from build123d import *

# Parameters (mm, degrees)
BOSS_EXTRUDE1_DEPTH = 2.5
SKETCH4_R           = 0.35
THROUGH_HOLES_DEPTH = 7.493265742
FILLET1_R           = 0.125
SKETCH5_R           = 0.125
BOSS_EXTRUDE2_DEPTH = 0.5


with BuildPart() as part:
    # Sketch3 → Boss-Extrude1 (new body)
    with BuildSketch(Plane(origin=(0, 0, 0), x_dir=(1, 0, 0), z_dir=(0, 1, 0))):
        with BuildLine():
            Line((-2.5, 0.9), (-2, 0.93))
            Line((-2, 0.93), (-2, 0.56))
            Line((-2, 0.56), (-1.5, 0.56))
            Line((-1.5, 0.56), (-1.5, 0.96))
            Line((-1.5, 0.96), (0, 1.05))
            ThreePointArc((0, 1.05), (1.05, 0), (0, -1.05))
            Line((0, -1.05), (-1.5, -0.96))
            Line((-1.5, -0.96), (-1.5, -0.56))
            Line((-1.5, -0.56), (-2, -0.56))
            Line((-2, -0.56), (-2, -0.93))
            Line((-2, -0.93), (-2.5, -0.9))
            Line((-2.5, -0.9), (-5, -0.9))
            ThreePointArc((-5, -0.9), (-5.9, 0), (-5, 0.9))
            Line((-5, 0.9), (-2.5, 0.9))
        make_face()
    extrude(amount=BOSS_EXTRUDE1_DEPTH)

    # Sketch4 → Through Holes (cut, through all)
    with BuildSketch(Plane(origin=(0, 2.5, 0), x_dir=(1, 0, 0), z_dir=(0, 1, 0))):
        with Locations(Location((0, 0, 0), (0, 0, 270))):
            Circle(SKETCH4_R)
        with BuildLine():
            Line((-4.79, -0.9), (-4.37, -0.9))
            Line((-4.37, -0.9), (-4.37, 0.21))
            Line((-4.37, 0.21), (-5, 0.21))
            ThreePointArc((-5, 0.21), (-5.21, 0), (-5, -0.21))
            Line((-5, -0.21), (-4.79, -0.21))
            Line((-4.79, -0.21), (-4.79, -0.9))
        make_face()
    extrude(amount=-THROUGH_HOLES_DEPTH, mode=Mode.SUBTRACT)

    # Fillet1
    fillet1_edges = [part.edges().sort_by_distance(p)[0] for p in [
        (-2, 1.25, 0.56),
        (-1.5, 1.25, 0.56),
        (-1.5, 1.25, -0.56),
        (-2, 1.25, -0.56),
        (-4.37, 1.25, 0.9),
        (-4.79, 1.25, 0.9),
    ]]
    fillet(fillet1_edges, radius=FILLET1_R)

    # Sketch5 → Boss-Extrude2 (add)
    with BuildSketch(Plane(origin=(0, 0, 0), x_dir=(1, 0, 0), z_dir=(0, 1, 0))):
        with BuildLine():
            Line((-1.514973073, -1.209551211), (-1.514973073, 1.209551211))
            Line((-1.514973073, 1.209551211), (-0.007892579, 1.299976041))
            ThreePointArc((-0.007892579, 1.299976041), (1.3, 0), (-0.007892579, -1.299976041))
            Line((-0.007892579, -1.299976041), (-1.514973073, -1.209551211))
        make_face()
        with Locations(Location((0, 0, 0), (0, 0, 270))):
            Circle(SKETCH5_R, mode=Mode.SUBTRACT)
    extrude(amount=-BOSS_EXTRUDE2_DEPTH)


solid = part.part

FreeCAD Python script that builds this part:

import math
import FreeCAD as App
import Part
import Sketcher
Q = App.Units.Quantity


def edges_at(feature, points):
    """Names of the edges that pass closest to the given points."""
    edges = feature.Shape.Edges
    near = lambda p: min(range(len(edges)), key=lambda i: edges[i].distToShape(Part.Vertex(*p))[0])
    return sorted({f"Edge{near(p) + 1}" for p in points})

doc = App.newDocument("Part")
params = doc.addObject("Spreadsheet::Sheet", "Params")
for row, (alias, value) in enumerate([
    ("sketch1_radius", "0.9 mm"),
    ("sketch1_radius2", "1.05 mm"),
    ("sketch1_width", "2.5 mm"),
    ("sketch1_width2", "0.5 mm"),
    ("sketch1_height", "0.4 mm"),
    ("pad1_length", "2.5 mm"),
    ("sketch2_diameter", "0.7 mm"),
    ("sketch2_radius", "0.21 mm"),
    ("sketch2_width", "0.42 mm"),
    ("sketch2_width2", "0.63 mm"),
    ("sketch2_height", "1.11 mm"),
    ("fillet_radius", "0.125 mm"),
    ("sketch3_radius", "1.3 mm"),
    ("sketch3_diameter", "0.25 mm"),
    ("pad2_length", "0.5 mm"),
], start=1):
    params.set(f"A{row}", alias)
    params.set(f"B{row}", "=" + value)
    params.setAlias(f"B{row}", alias)

body = doc.addObject("PartDesign::Body", "Body")

# Sketch on XZ plane
sketch1 = body.newObject("Sketcher::SketchObject", "Sketch")
sketch1.AttachmentSupport = (doc.getObject("XZ_Plane"), [""])
sketch1.MapMode = "FlatFace"
sketch1.addGeometry(Part.LineSegment(App.Vector(-2, -0.93, 0), App.Vector(-2.5, -0.9, 0)), False)
sketch1.addGeometry(Part.LineSegment(App.Vector(-2.5, -0.9, 0), App.Vector(-5, -0.9, 0)), False)
sketch1.addGeometry(Part.ArcOfCircle(Part.Circle(App.Vector(-5, 0, 0), App.Vector(0, 0, 1), 0.9), math.radians(90), math.radians(270)), False)
sketch1.addGeometry(Part.LineSegment(App.Vector(-5, 0.9, 0), App.Vector(-2.5, 0.9, 0)), False)
sketch1.addGeometry(Part.LineSegment(App.Vector(-2.5, 0.9, 0), App.Vector(-2, 0.93, 0)), False)
sketch1.addGeometry(Part.LineSegment(App.Vector(-2, 0.93, 0), App.Vector(-2, 0.56, 0)), False)
sketch1.addGeometry(Part.LineSegment(App.Vector(-2, 0.56, 0), App.Vector(-1.5, 0.56, 0)), False)
sketch1.addGeometry(Part.LineSegment(App.Vector(-1.5, 0.56, 0), App.Vector(-1.5, 0.96, 0)), False)
sketch1.addGeometry(Part.LineSegment(App.Vector(-1.5, 0.96, 0), App.Vector(0, 1.05, 0)), False)
sketch1.addGeometry(Part.ArcOfCircle(Part.Circle(App.Vector(0, 0, 0), App.Vector(0, 0, 1), 1.05), math.radians(-90), math.radians(90)), False)
sketch1.addGeometry(Part.LineSegment(App.Vector(0, -1.05, 0), App.Vector(-1.5, -0.96, 0)), False)
sketch1.addGeometry(Part.LineSegment(App.Vector(-1.5, -0.96, 0), App.Vector(-1.5, -0.56, 0)), False)
sketch1.addGeometry(Part.LineSegment(App.Vector(-1.5, -0.56, 0), App.Vector(-2, -0.56, 0)), False)
sketch1.addGeometry(Part.LineSegment(App.Vector(-2, -0.56, 0), App.Vector(-2, -0.93, 0)), False)
sketch1.addConstraint(Sketcher.Constraint("Coincident", 0, 2, 1, 1))
sketch1.addConstraint(Sketcher.Constraint("Tangent", 1, 2, 2, 2))
sketch1.addConstraint(Sketcher.Constraint("Tangent", 2, 1, 3, 1))
sketch1.addConstraint(Sketcher.Constraint("Coincident", 3, 2, 4, 1))
sketch1.addConstraint(Sketcher.Constraint("Coincident", 4, 2, 5, 1))
sketch1.addConstraint(Sketcher.Constraint("Coincident", 5, 2, 6, 1))
sketch1.addConstraint(Sketcher.Constraint("Coincident", 6, 2, 7, 1))
sketch1.addConstraint(Sketcher.Constraint("Coincident", 7, 2, 8, 1))
sketch1.addConstraint(Sketcher.Constraint("Coincident", 8, 2, 9, 2))
sketch1.addConstraint(Sketcher.Constraint("Coincident", 9, 1, 10, 1))
sketch1.addConstraint(Sketcher.Constraint("Coincident", 10, 2, 11, 1))
sketch1.addConstraint(Sketcher.Constraint("Coincident", 11, 2, 12, 1))
sketch1.addConstraint(Sketcher.Constraint("Coincident", 12, 2, 13, 1))
sketch1.addConstraint(Sketcher.Constraint("Coincident", 13, 2, 0, 1))
sketch1.addConstraint(Sketcher.Constraint("Horizontal", 1))
sketch1.addConstraint(Sketcher.Constraint("Horizontal", 3))
sketch1.addConstraint(Sketcher.Constraint("Vertical", 5))
sketch1.addConstraint(Sketcher.Constraint("Horizontal", 6))
sketch1.addConstraint(Sketcher.Constraint("Vertical", 7))
sketch1.addConstraint(Sketcher.Constraint("Vertical", 11))
sketch1.addConstraint(Sketcher.Constraint("Horizontal", 12))
sketch1.addConstraint(Sketcher.Constraint("Vertical", 13))
sketch1.addConstraint(Sketcher.Constraint("Coincident", 9, 3, -1, 1))
sketch1.addConstraint(Sketcher.Constraint("Symmetric", 0, 2, 3, 2, -1))
sketch1.addConstraint(Sketcher.Constraint("Symmetric", 7, 2, 10, 2, -1))
sketch1.addConstraint(Sketcher.Constraint("Symmetric", 5, 2, 12, 2, -1))
sketch1.addConstraint(Sketcher.Constraint("PointOnObject", 8, 2, -2))
sketch1.addConstraint(Sketcher.Constraint("PointOnObject", 9, 1, -2))
sketch1.addConstraint(Sketcher.Constraint("Parallel", 4, 8))
sketch1.addConstraint(Sketcher.Constraint("Parallel", 0, 10))
sketch1.addConstraint(Sketcher.Constraint("Radius", 2, Q("0.9 mm")))
sketch1.addConstraint(Sketcher.Constraint("Radius", 9, Q("1.05 mm")))
sketch1.addConstraint(Sketcher.Constraint("DistanceX", 1, 2, 1, 1, Q("2.5 mm")))
sketch1.addConstraint(Sketcher.Constraint("DistanceX", 6, 1, 6, 2, Q("0.5 mm")))
sketch1.addConstraint(Sketcher.Constraint("DistanceY", 7, 1, 7, 2, Q("0.4 mm")))
sketch1.addConstraint(Sketcher.Constraint("DistanceX", 2, 3, -1, 1, Q("5 mm")))
sketch1.addConstraint(Sketcher.Constraint("DistanceX", 4, 2, -1, 1, Q("2 mm")))
sketch1.addConstraint(Sketcher.Constraint("DistanceY", 5, 2, 5, 1, Q("0.37 mm")))
sketch1.setExpression("Constraints[30]", "Params.sketch1_radius")
sketch1.setExpression("Constraints[31]", "Params.sketch1_radius2")
sketch1.setExpression("Constraints[32]", "Params.sketch1_width")
sketch1.setExpression("Constraints[33]", "Params.sketch1_width2")
sketch1.setExpression("Constraints[34]", "Params.sketch1_height")
pad1 = body.newObject("PartDesign::Pad", "Pad")
pad1.Profile = sketch1
pad1.setExpression("Length", "Params.pad1_length")
pad1.Reversed = True

# Sketch on XZ plane
sketch2 = body.newObject("Sketcher::SketchObject", "Sketch001")
sketch2.AttachmentSupport = (doc.getObject("XZ_Plane"), [""])
sketch2.MapMode = "FlatFace"
sketch2.AttachmentOffset = App.Placement(App.Vector(0, 0, -2.5), App.Rotation())
sketch2.addGeometry(Part.Circle(App.Vector(0, 0, 0), App.Vector(0, 0, 1), 0.35), False)
sketch2.addGeometry(Part.LineSegment(App.Vector(-4.79, 0.9, 0), App.Vector(-4.37, 0.9, 0)), False)
sketch2.addGeometry(Part.LineSegment(App.Vector(-4.37, 0.9, 0), App.Vector(-4.37, -0.21, 0)), False)
sketch2.addGeometry(Part.LineSegment(App.Vector(-4.37, -0.21, 0), App.Vector(-5, -0.21, 0)), False)
sketch2.addGeometry(Part.ArcOfCircle(Part.Circle(App.Vector(-5, 0, 0), App.Vector(0, 0, 1), 0.21), math.radians(90), math.radians(270)), False)
sketch2.addGeometry(Part.LineSegment(App.Vector(-5, 0.21, 0), App.Vector(-4.79, 0.21, 0)), False)
sketch2.addGeometry(Part.LineSegment(App.Vector(-4.79, 0.21, 0), App.Vector(-4.79, 0.9, 0)), False)
sketch2.addConstraint(Sketcher.Constraint("Coincident", 1, 2, 2, 1))
sketch2.addConstraint(Sketcher.Constraint("Coincident", 2, 2, 3, 1))
sketch2.addConstraint(Sketcher.Constraint("Tangent", 3, 2, 4, 2))
sketch2.addConstraint(Sketcher.Constraint("Tangent", 4, 1, 5, 1))
sketch2.addConstraint(Sketcher.Constraint("Coincident", 5, 2, 6, 1))
sketch2.addConstraint(Sketcher.Constraint("Coincident", 6, 2, 1, 1))
sketch2.addConstraint(Sketcher.Constraint("Horizontal", 1))
sketch2.addConstraint(Sketcher.Constraint("Vertical", 2))
sketch2.addConstraint(Sketcher.Constraint("Horizontal", 3))
sketch2.addConstraint(Sketcher.Constraint("Horizontal", 5))
sketch2.addConstraint(Sketcher.Constraint("Vertical", 6))
sketch2.addConstraint(Sketcher.Constraint("Coincident", 0, 3, -1, 1))
sketch2.addConstraint(Sketcher.Constraint("PointOnObject", 4, 3, -1))
sketch2.addConstraint(Sketcher.Constraint("Diameter", 0, Q("0.7 mm")))
sketch2.addConstraint(Sketcher.Constraint("Radius", 4, Q("0.21 mm")))
sketch2.addConstraint(Sketcher.Constraint("DistanceX", 4, 3, -1, 1, Q("5 mm")))
sketch2.addConstraint(Sketcher.Constraint("DistanceX", 1, 1, 1, 2, Q("0.42 mm")))
sketch2.addConstraint(Sketcher.Constraint("DistanceX", 3, 2, 3, 1, Q("0.63 mm")))
sketch2.addConstraint(Sketcher.Constraint("DistanceY", 2, 2, 2, 1, Q("1.11 mm")))
sketch2.setExpression("Constraints[13]", "Params.sketch2_diameter")
sketch2.setExpression("Constraints[14]", "Params.sketch2_radius")
sketch2.setExpression("Constraints[16]", "Params.sketch2_width")
sketch2.setExpression("Constraints[17]", "Params.sketch2_width2")
sketch2.setExpression("Constraints[18]", "Params.sketch2_height")
pocket1 = body.newObject("PartDesign::Pocket", "Pocket")
pocket1.Profile = sketch2
pocket1.Type = "ThroughAll"
pocket1.Reversed = True
doc.recompute()

fillet = body.newObject("PartDesign::Fillet", "Fillet")
fillet.Base = (pocket1, edges_at(pocket1, [
    (-2, 1.25, 0.56),
    (-1.5, 1.25, 0.56),
    (-1.5, 1.25, -0.56),
    (-2, 1.25, -0.56),
    (-4.37, 1.25, 0.9),
    (-4.79, 1.25, 0.9),
]))
fillet.setExpression("Radius", "Params.fillet_radius")

# Sketch on XZ plane
sketch3 = body.newObject("Sketcher::SketchObject", "Sketch002")
sketch3.AttachmentSupport = (doc.getObject("XZ_Plane"), [""])
sketch3.MapMode = "FlatFace"
sketch3.addGeometry(Part.LineSegment(App.Vector(-1.51, -1.21, 0), App.Vector(-1.51, 1.21, 0)), False)
sketch3.addGeometry(Part.LineSegment(App.Vector(-1.51, 1.21, 0), App.Vector(-0.01, 1.3, 0)), False)
sketch3.addGeometry(Part.ArcOfCircle(Part.Circle(App.Vector(0, 0, 0), App.Vector(0, 0, 1), 1.3), math.radians(-90), math.radians(90)), False)
sketch3.addGeometry(Part.LineSegment(App.Vector(-0.01, -1.3, 0), App.Vector(-1.51, -1.21, 0)), False)
sketch3.addGeometry(Part.Circle(App.Vector(0, 0, 0), App.Vector(0, 0, 1), 0.12), False)
sketch3.addConstraint(Sketcher.Constraint("Coincident", 0, 2, 1, 1))
sketch3.addConstraint(Sketcher.Constraint("Coincident", 1, 2, 2, 2))
sketch3.addConstraint(Sketcher.Constraint("Coincident", 2, 1, 3, 1))
sketch3.addConstraint(Sketcher.Constraint("Coincident", 3, 2, 0, 1))
sketch3.addConstraint(Sketcher.Constraint("Vertical", 0))
sketch3.addConstraint(Sketcher.Constraint("Coincident", 2, 3, -1, 1))
sketch3.addConstraint(Sketcher.Constraint("Coincident", 4, 3, -1, 1))
sketch3.addConstraint(Sketcher.Constraint("Vertical", 1, 2, 2, 1))
sketch3.addConstraint(Sketcher.Constraint("Equal", 1, 3))
sketch3.addConstraint(Sketcher.Constraint("Radius", 2, Q("1.3 mm")))
sketch3.addConstraint(Sketcher.Constraint("Diameter", 4, Q("0.25 mm")))
sketch3.addConstraint(Sketcher.Constraint("Distance", 1, Q("1.509791 mm")))
sketch3.addConstraint(Sketcher.Constraint("DistanceY", 0, 1, 0, 2, Q("2.419102 mm")))
sketch3.addConstraint(Sketcher.Constraint("DistanceX", 0, 2, -1, 1, Q("1.514973 mm")))
sketch3.setExpression("Constraints[9]", "Params.sketch3_radius")
sketch3.setExpression("Constraints[10]", "Params.sketch3_diameter")
pad2 = body.newObject("PartDesign::Pad", "Pad001")
pad2.Profile = sketch3
pad2.setExpression("Length", "Params.pad2_length")

doc.recompute()
